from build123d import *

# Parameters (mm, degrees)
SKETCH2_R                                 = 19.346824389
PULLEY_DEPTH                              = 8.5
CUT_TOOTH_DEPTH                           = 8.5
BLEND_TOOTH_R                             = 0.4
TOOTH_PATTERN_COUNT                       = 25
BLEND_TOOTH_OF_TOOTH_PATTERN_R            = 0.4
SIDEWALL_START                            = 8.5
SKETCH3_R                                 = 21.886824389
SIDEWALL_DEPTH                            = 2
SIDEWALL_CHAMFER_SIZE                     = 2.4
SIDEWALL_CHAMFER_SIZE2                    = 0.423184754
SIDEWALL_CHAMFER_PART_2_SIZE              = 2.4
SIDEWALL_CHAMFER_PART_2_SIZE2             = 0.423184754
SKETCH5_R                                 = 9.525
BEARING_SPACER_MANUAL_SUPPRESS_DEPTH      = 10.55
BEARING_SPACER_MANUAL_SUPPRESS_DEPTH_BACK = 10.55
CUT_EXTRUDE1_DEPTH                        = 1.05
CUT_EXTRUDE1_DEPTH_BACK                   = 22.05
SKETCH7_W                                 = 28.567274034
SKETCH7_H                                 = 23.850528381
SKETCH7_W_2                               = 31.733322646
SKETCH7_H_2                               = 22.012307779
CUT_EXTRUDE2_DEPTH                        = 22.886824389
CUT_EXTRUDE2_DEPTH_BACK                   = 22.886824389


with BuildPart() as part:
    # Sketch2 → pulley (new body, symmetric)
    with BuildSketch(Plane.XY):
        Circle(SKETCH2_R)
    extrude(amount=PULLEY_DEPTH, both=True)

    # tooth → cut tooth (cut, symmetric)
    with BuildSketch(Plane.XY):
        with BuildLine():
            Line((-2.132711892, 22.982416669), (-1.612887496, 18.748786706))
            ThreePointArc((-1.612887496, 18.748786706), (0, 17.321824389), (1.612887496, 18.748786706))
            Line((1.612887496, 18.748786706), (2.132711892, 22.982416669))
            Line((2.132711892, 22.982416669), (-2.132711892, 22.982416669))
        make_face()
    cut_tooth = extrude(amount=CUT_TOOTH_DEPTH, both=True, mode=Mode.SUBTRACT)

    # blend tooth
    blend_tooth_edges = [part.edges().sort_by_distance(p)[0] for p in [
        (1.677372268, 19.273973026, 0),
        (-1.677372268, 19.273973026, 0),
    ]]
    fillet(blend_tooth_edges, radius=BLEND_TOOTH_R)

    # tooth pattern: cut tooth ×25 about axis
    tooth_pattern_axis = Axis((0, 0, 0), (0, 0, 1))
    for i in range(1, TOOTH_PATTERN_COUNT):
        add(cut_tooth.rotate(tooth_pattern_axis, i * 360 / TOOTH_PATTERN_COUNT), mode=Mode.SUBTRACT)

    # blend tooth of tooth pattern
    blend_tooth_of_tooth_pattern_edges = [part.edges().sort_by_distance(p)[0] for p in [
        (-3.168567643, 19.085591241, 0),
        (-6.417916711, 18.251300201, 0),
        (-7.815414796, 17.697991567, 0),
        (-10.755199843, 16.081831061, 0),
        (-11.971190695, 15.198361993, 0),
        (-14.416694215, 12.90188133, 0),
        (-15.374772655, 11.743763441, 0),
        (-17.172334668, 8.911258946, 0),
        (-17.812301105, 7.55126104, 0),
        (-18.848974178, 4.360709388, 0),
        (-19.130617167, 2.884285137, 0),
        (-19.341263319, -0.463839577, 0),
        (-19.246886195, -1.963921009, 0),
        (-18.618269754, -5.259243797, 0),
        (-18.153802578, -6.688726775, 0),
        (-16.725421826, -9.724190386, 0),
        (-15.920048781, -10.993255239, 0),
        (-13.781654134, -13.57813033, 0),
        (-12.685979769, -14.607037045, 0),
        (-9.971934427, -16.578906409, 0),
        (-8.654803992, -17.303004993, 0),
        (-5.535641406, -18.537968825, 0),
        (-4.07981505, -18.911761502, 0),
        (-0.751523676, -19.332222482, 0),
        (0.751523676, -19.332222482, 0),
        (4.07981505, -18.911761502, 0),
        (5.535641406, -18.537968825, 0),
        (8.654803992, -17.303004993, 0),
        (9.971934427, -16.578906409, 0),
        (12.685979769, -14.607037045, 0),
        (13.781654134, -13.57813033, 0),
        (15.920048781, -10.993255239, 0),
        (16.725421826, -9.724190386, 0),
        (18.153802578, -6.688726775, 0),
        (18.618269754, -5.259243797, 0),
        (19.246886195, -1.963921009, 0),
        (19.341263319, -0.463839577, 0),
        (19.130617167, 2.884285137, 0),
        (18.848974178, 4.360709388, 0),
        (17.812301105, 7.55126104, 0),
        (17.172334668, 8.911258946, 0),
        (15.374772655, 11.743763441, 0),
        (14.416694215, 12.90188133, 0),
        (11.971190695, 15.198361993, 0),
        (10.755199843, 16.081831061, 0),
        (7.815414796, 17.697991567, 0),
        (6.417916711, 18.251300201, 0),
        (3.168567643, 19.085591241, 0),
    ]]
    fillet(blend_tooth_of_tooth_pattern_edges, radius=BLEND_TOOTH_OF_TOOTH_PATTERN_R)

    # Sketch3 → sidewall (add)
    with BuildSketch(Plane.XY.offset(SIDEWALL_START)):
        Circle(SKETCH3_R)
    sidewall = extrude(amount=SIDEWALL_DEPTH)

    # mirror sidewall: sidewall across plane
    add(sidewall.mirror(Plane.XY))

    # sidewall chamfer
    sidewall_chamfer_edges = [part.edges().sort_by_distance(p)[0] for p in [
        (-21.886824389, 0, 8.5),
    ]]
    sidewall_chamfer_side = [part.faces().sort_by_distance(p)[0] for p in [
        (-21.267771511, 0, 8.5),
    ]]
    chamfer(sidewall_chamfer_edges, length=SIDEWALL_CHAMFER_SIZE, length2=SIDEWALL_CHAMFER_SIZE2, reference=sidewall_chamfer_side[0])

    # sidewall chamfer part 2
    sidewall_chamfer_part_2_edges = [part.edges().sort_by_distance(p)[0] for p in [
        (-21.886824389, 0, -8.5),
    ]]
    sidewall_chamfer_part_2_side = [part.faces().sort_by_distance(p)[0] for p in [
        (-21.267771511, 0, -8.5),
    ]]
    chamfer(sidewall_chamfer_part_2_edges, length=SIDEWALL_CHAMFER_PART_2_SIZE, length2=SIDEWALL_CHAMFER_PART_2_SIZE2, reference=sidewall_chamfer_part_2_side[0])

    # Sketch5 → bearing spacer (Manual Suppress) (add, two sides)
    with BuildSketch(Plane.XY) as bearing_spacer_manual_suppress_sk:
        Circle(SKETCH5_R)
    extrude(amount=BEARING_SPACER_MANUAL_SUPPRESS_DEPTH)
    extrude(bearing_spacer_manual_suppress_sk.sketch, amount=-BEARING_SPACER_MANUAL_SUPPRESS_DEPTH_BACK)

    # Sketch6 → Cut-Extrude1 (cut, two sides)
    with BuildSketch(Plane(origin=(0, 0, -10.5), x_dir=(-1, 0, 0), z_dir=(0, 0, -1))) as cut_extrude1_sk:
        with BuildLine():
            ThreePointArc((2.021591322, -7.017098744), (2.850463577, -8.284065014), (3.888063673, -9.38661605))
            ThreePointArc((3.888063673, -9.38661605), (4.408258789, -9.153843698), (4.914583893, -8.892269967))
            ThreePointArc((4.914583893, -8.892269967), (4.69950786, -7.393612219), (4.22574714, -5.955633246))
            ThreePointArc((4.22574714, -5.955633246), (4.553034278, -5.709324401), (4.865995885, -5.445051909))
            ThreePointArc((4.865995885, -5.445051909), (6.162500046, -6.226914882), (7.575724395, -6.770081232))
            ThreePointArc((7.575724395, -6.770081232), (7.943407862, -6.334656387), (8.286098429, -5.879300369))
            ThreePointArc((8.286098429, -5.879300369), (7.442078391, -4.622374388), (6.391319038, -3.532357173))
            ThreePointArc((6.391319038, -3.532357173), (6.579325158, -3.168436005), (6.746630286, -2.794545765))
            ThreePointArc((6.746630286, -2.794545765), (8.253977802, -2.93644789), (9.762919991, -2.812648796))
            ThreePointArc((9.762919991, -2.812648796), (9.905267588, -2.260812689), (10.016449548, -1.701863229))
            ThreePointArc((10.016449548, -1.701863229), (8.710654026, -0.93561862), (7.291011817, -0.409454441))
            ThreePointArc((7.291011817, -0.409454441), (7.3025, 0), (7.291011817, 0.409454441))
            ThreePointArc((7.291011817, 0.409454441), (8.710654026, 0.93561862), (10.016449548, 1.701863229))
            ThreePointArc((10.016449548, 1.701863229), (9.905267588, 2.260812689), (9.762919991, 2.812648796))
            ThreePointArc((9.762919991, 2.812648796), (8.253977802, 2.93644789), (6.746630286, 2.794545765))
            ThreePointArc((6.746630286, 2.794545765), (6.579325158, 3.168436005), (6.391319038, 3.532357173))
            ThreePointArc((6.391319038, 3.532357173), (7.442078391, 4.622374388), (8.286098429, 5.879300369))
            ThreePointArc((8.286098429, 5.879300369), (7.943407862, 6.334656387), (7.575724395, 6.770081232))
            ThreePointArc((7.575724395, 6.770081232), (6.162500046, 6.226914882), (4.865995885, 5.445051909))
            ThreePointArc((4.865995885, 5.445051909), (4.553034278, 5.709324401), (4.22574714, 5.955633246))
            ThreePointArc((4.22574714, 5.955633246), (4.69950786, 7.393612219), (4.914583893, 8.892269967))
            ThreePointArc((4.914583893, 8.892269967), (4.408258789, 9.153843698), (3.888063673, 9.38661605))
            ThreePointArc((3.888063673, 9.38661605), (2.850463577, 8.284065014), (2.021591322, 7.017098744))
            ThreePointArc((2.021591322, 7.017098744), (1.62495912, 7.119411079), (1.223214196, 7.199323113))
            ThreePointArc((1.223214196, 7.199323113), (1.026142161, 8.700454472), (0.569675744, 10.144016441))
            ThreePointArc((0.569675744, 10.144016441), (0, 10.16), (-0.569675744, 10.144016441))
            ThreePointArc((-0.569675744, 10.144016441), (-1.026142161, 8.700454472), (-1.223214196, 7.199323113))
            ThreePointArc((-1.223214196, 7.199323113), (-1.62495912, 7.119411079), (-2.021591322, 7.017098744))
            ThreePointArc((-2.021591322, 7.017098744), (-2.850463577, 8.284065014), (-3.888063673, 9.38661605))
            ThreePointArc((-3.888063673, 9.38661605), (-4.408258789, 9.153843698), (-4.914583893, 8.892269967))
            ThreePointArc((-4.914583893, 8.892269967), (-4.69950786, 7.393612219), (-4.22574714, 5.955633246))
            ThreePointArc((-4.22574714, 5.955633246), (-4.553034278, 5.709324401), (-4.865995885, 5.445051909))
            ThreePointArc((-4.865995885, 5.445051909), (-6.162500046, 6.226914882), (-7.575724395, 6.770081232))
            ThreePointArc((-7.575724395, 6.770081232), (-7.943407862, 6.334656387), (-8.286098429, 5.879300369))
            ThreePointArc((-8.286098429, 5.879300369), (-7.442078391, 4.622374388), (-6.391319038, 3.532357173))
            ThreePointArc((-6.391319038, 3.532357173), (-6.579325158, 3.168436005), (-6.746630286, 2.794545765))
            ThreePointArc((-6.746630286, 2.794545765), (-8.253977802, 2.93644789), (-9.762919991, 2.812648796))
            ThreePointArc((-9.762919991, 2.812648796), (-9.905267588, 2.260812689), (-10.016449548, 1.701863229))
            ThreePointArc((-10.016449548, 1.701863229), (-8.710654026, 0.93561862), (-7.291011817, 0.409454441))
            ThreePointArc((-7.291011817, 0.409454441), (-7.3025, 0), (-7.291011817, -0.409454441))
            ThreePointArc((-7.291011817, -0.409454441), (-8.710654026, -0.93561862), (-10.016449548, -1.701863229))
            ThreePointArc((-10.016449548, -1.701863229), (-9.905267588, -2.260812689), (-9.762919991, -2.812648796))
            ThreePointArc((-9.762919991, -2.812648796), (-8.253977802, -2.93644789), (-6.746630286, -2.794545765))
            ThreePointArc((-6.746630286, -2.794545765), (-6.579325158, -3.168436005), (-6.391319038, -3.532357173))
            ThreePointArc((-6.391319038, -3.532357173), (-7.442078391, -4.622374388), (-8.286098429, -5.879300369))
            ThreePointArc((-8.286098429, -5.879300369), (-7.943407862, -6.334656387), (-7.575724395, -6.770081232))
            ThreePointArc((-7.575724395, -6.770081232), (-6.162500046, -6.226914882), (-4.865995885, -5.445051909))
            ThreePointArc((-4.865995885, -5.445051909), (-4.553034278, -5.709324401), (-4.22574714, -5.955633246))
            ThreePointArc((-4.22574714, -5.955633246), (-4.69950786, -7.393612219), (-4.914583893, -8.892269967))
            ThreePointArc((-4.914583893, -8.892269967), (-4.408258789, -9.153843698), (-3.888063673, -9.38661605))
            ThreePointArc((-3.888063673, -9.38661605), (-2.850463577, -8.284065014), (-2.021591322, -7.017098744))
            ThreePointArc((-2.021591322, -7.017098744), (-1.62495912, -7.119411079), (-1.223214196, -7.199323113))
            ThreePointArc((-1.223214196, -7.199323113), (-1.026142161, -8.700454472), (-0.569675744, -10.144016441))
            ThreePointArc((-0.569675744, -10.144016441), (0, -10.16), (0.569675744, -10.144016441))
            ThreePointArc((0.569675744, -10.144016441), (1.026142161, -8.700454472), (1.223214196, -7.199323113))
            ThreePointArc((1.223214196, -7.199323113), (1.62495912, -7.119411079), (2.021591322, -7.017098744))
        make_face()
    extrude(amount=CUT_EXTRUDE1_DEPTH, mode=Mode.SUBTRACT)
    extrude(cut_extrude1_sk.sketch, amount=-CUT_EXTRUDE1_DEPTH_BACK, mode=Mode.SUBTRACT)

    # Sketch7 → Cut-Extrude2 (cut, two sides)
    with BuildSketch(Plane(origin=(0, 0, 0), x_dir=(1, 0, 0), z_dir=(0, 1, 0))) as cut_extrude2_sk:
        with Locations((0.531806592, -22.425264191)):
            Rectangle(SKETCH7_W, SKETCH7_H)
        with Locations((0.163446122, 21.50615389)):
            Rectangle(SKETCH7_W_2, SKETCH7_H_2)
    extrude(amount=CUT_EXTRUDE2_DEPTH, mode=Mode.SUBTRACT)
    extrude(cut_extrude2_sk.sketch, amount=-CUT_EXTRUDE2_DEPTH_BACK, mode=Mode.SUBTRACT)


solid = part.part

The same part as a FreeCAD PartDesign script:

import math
import FreeCAD as App
import Part
import Sketcher
from FreeCAD import Vector
Q = App.Units.Quantity


def edges_at(feature, points):
    """Names of the edges that pass closest to the given points."""
    edges = feature.Shape.Edges
    near = lambda p: min(range(len(edges)), key=lambda i: edges[i].distToShape(Part.Vertex(*p))[0])
    return sorted({f"Edge{near(p) + 1}" for p in points})


def add_polygon(sketch, points):
    """Adds a closed chain of lines whose ends are joined by coincident constraints."""
    first, n = sketch.GeometryCount, len(points)
    for a, b in zip(points, points[1:] + points[:1]):
        sketch.addGeometry(Part.LineSegment(App.Vector(*a, 0), App.Vector(*b, 0)), False)
    for i in range(n):
        sketch.addConstraint(Sketcher.Constraint("Coincident", first + i, 2, first + (i + 1) % n, 1))

doc = App.newDocument("Part")
body = doc.addObject("PartDesign::Body", "Body")

# Sketch on XY plane
sketch1 = body.newObject("Sketcher::SketchObject", "Sketch")
sketch1.AttachmentSupport = (doc.getObject("XY_Plane"), [""])
sketch1.MapMode = "FlatFace"
sketch1.addGeometry(Part.Circle(Vector(0, 0, 0), Vector(0, 0, 1), 19.346824), False)
sketch1.addConstraint([
    Sketcher.Constraint("Coincident", 0, 3, -1, 1),
    Sketcher.Constraint("Diameter", 0, Q("38.693649 mm")),
])
pad1 = body.newObject("PartDesign::Pad", "Pad")
pad1.Profile = sketch1
pad1.Length = 17
pad1.Midplane = True

# Sketch on XY plane
sketch2 = body.newObject("Sketcher::SketchObject", "Sketch001")
sketch2.AttachmentSupport = (doc.getObject("XY_Plane"), [""])
sketch2.MapMode = "FlatFace"
sketch2.addGeometry([
    Part.LineSegment(Vector(-2.132712, 22.982417, 0), Vector(-1.612887, 18.748787, 0)),
    Part.ArcOfCircle(Part.Circle(Vector(0, 18.946824, 0), Vector(0, 0, 1), 1.625), math.radians(-173), math.radians(-7)),
    Part.LineSegment(Vector(1.612887, 18.748787, 0), Vector(2.132712, 22.982417, 0)),
    Part.LineSegment(Vector(2.132712, 22.982417, 0), Vector(-2.132712, 22.982417, 0)),
], False)
sketch2.addConstraint([
    Sketcher.Constraint("Tangent", 0, 2, 1, 1),
    Sketcher.Constraint("Tangent", 1, 2, 2, 1),
    Sketcher.Constraint("Coincident", 2, 2, 3, 1),
    Sketcher.Constraint("Coincident", 3, 2, 0, 1),
    Sketcher.Constraint("Horizontal", 3),
    Sketcher.Constraint("Symmetric", 0, 2, 1, 2, -2),
    Sketcher.Constraint("Angle", 0, Q("-83 deg")),
    Sketcher.Constraint("Radius", 1, Q("1.625 mm")),
    Sketcher.Constraint("DistanceX", 0, 2, 2, 2, Q("3.745599 mm")),
    Sketcher.Constraint("DistanceY", -1, 1, 1, 3, Q("18.946824 mm")),
])
pocket1 = body.newObject("PartDesign::Pocket", "Pocket")
pocket1.Profile = sketch2
pocket1.Length = 17
pocket1.Midplane = True
doc.recompute()

fillet = body.newObject("PartDesign::Fillet", "Fillet")
fillet.Base = (pocket1, edges_at(pocket1, [(1.677, 19.274, 0), (-1.677, 19.274, 0)]))
fillet.Radius = 0.4
doc.recompute()

polarpattern = body.newObject("PartDesign::PolarPattern", "PolarPattern")
polarpattern.Originals = [pocket1]
polarpattern.Axis = (doc.getObject("Z_Axis"), [""])
polarpattern.Angle = 360
polarpattern.Occurrences = 25
body.Tip = polarpattern
doc.recompute()

fillet2 = body.newObject("PartDesign::Fillet", "Fillet001")
fillet2.Base = (polarpattern, edges_at(polarpattern, [
    (-3.169, 19.086, 0),
    (-6.418, 18.251, 0),
    (-7.815, 17.698, 0),
    (-10.755, 16.082, 0),
    (-11.971, 15.198, 0),
    (-14.417, 12.902, 0),
    (-15.375, 11.744, 0),
    (-17.172, 8.911, 0),
    (-17.812, 7.551, 0),
    (-18.849, 4.361, 0),
    (-19.131, 2.884, 0),
    (-19.341, -0.464, 0),
    (-19.247, -1.964, 0),
    (-18.618, -5.259, 0),
    (-18.154, -6.689, 0),
    (-16.725, -9.724, 0),
    (-15.92, -10.993, 0),
    (-13.782, -13.578, 0),
    (-12.686, -14.607, 0),
    (-9.972, -16.579, 0),
    (-8.655, -17.303, 0),
    (-5.536, -18.538, 0),
    (-4.08, -18.912, 0),
    (-0.752, -19.332, 0),
    (0.752, -19.332, 0),
    (4.08, -18.912, 0),
    (5.536, -18.538, 0),
    (8.655, -17.303, 0),
    (9.972, -16.579, 0),
    (12.686, -14.607, 0),
    (13.782, -13.578, 0),
    (15.92, -10.993, 0),
    (16.725, -9.724, 0),
    (18.154, -6.689, 0),
    (18.618, -5.259, 0),
    (19.247, -1.964, 0),
    (19.341, -0.464, 0),
    (19.131, 2.884, 0),
    (18.849, 4.361, 0),
    (17.812, 7.551, 0),
    (17.172, 8.911, 0),
    (15.375, 11.744, 0),
    (14.417, 12.902, 0),
    (11.971, 15.198, 0),
    (10.755, 16.082, 0),
    (7.815, 17.698, 0),
    (6.418, 18.251, 0),
    (3.169, 19.086, 0),
]))
fillet2.Radius = 0.4

# Sketch on XY plane
sketch3 = body.newObject("Sketcher::SketchObject", "Sketch002")
sketch3.AttachmentSupport = (doc.getObject("XY_Plane"), [""])
sketch3.MapMode = "FlatFace"
sketch3.AttachmentOffset = App.Placement(Vector(0, 0, 8.5), App.Rotation())
sketch3.addGeometry(Part.Circle(Vector(0, 0, 0), Vector(0, 0, 1), 21.886824), False)
sketch3.addConstraint([
    Sketcher.Constraint("Coincident", 0, 3, -1, 1),
    Sketcher.Constraint("Diameter", 0, Q("43.773649 mm")),
])
pad2 = body.newObject("PartDesign::Pad", "Pad001")
pad2.Profile = sketch3
pad2.Length = 2
doc.recompute()

mirrored = body.newObject("PartDesign::Mirrored", "Mirrored")
mirrored.Originals = [pad2]
mirrored.MirrorPlane = (doc.getObject("XY_Plane"), [""])
body.Tip = mirrored
doc.recompute()

chamfer = body.newObject("PartDesign::Chamfer", "Chamfer")
chamfer.Base = (mirrored, edges_at(mirrored, [(-21.887, 0, 8.5)]))
chamfer.ChamferType = "Two distances"
chamfer.Size = 2.4
chamfer.Size2 = 0.423185
doc.recompute()

chamfer2 = body.newObject("PartDesign::Chamfer", "Chamfer001")
chamfer2.Base = (chamfer, edges_at(chamfer, [(-21.887, 0, -8.5)]))
chamfer2.ChamferType = "Two distances"
chamfer2.Size = 2.4
chamfer2.Size2 = 0.423185

# Sketch on XY plane
sketch4 = body.newObject("Sketcher::SketchObject", "Sketch003")
sketch4.AttachmentSupport = (doc.getObject("XY_Plane"), [""])
sketch4.MapMode = "FlatFace"
sketch4.addGeometry(Part.Circle(Vector(0, 0, 0), Vector(0, 0, 1), 9.525), False)
sketch4.addConstraint([
    Sketcher.Constraint("Coincident", 0, 3, -1, 1),
    Sketcher.Constraint("Diameter", 0, Q("0.75 in")),
])
pad3 = body.newObject("PartDesign::Pad", "Pad002")
pad3.Profile = sketch4
pad3.Type = "TwoLengths"
pad3.Length = 10.55
pad3.Length2 = 10.55

# Sketch on XY plane
sketch5 = body.newObject("Sketcher::SketchObject", "Sketch004")
sketch5.AttachmentSupport = (doc.getObject("XY_Plane"), [""])
sketch5.MapMode = "FlatFace"
sketch5.AttachmentOffset = App.Placement(Vector(0, 0, -10.5), App.Rotation())
sketch5.addGeometry([
    Part.ArcOfCircle(Part.Circle(Vector(-9.627446, -2.945826, 0), Vector(0, 0, 1), 8.626951), math.radians(-48.295798), math.radians(-28.159317)),  # 0
    Part.ArcOfCircle(Part.Circle(Vector(0, 0, 0), Vector(0, 0, 1), 10.16), math.radians(-118.928571), math.radians(-112.5)),  # 1
    Part.ArcOfCircle(Part.Circle(Vector(3.699475, -9.363733, 0), Vector(0, 0, 1), 8.626951), math.radians(156.730746), math.radians(176.867226)),  # 2
    Part.ArcOfCircle(Part.Circle(Vector(0, 0, 0), Vector(0, 0, 1), 7.3025), math.radians(-131.785714), math.radians(-125.357143)),  # 3
    Part.ArcOfCircle(Part.Circle(Vector(-9.952175, 1.523095, 0), Vector(0, 0, 1), 8.626951), math.radians(-74.010083), math.radians(-53.873603)),  # 4
    Part.ArcOfCircle(Part.Circle(Vector(0, 0, 0), Vector(0, 0, 1), 10.16), math.radians(-144.642857), math.radians(-138.214286)),  # 5
    Part.ArcOfCircle(Part.Circle(Vector(-0.72966, -10.041574, 0), Vector(0, 0, 1), 8.626951), math.radians(131.01646), math.radians(151.15294)),  # 6
    Part.ArcOfCircle(Part.Circle(Vector(0, 0, 0), Vector(0, 0, 1), 7.3025), math.radians(-157.5), math.radians(-151.071428)),  # 7
    Part.ArcOfCircle(Part.Circle(Vector(-8.305754, 5.690348, 0), Vector(0, 0, 1), 8.626951), math.radians(-99.724369), math.radians(-79.587889)),  # 8
    Part.ArcOfCircle(Part.Circle(Vector(0, 0, 0), Vector(0, 0, 1), 10.16), math.radians(-170.357143), math.radians(-163.928571)),  # 9
    Part.ArcOfCircle(Part.Circle(Vector(-5.014276, -8.730558, 0), Vector(0, 0, 1), 8.626951), math.radians(105.302175), math.radians(125.438655)),  # 10
    Part.ArcOfCircle(Part.Circle(Vector(0, 0, 0), Vector(0, 0, 1), 7.3025), math.radians(176.785714), math.radians(183.214286)),  # 11
    Part.ArcOfCircle(Part.Circle(Vector(-5.014276, 8.730558, 0), Vector(0, 0, 1), 8.626951), math.radians(-125.438655), math.radians(-105.302175)),  # 12
    Part.ArcOfCircle(Part.Circle(Vector(0, 0, 0), Vector(0, 0, 1), 10.16), math.radians(163.928571), math.radians(170.357143)),  # 13
    Part.ArcOfCircle(Part.Circle(Vector(-8.305754, -5.690348, 0), Vector(0, 0, 1), 8.626951), math.radians(79.587889), math.radians(99.724369)),  # 14
    Part.ArcOfCircle(Part.Circle(Vector(0, 0, 0), Vector(0, 0, 1), 7.3025), math.radians(151.071428), math.radians(157.5)),  # 15
    Part.ArcOfCircle(Part.Circle(Vector(-0.72966, 10.041574, 0), Vector(0, 0, 1), 8.626951), math.radians(-151.15294), math.radians(-131.01646)),  # 16
    Part.ArcOfCircle(Part.Circle(Vector(0, 0, 0), Vector(0, 0, 1), 10.16), math.radians(138.214286), math.radians(144.642857)),  # 17
    Part.ArcOfCircle(Part.Circle(Vector(-9.952175, -1.523095, 0), Vector(0, 0, 1), 8.626951), math.radians(53.873603), math.radians(74.010083)),  # 18
    Part.ArcOfCircle(Part.Circle(Vector(0, 0, 0), Vector(0, 0, 1), 7.3025), math.radians(125.357143), math.radians(131.785714)),  # 19
    Part.ArcOfCircle(Part.Circle(Vector(3.699475, 9.363733, 0), Vector(0, 0, 1), 8.626951), math.radians(-176.867226), math.radians(-156.730746)),  # 20
    Part.ArcOfCircle(Part.Circle(Vector(0, 0, 0), Vector(0, 0, 1), 10.16), math.radians(112.5), math.radians(118.928571)),  # 21
    Part.ArcOfCircle(Part.Circle(Vector(-9.627446, 2.945826, 0), Vector(0, 0, 1), 8.626951), math.radians(28.159317), math.radians(48.295798)),  # 22
    Part.ArcOfCircle(Part.Circle(Vector(0, 0, 0), Vector(0, 0, 1), 7.3025), math.radians(99.642857), math.radians(106.071429)),  # 23
    Part.ArcOfCircle(Part.Circle(Vector(7.395883, 6.83129, 0), Vector(0, 0, 1), 8.626951), math.radians(157.418488), math.radians(177.554968)),  # 24
    Part.ArcOfCircle(Part.Circle(Vector(0, 0, 0), Vector(0, 0, 1), 10.16), math.radians(86.785714), math.radians(93.214286)),  # 25
    Part.ArcOfCircle(Part.Circle(Vector(-7.395883, 6.83129, 0), Vector(0, 0, 1), 8.626951), math.radians(2.445032), math.radians(22.581512)),  # 26
    Part.ArcOfCircle(Part.Circle(Vector(0, 0, 0), Vector(0, 0, 1), 7.3025), math.radians(73.928571), math.radians(80.357143)),  # 27
    Part.ArcOfCircle(Part.Circle(Vector(9.627446, 2.945826, 0), Vector(0, 0, 1), 8.626951), math.radians(131.704202), math.radians(151.840683)),  # 28
    Part.ArcOfCircle(Part.Circle(Vector(0, 0, 0), Vector(0, 0, 1), 10.16), math.radians(61.071429), math.radians(67.5)),  # 29
    Part.ArcOfCircle(Part.Circle(Vector(-3.699475, 9.363733, 0), Vector(0, 0, 1), 8.626951), math.radians(-23.269254), math.radians(-3.132774)),  # 30
    Part.ArcOfCircle(Part.Circle(Vector(0, 0, 0), Vector(0, 0, 1), 7.3025), math.radians(48.214286), math.radians(54.642857)),  # 31
    Part.ArcOfCircle(Part.Circle(Vector(9.952175, -1.523095, 0), Vector(0, 0, 1), 8.626951), math.radians(105.989917), math.radians(126.126397)),  # 32
    Part.ArcOfCircle(Part.Circle(Vector(0, 0, 0), Vector(0, 0, 1), 10.16), math.radians(35.357143), math.radians(41.785714)),  # 33
    Part.ArcOfCircle(Part.Circle(Vector(0.72966, 10.041574, 0), Vector(0, 0, 1), 8.626951), math.radians(-48.98354), math.radians(-28.84706)),  # 34
    Part.ArcOfCircle(Part.Circle(Vector(0, 0, 0), Vector(0, 0, 1), 7.3025), math.radians(22.5), math.radians(28.928572)),  # 35
    Part.ArcOfCircle(Part.Circle(Vector(8.305754, -5.690348, 0), Vector(0, 0, 1), 8.626951), math.radians(80.275631), math.radians(100.412111)),  # 36
    Part.ArcOfCircle(Part.Circle(Vector(0, 0, 0), Vector(0, 0, 1), 10.16), math.radians(9.642857), math.radians(16.071429)),  # 37
    Part.ArcOfCircle(Part.Circle(Vector(5.014276, 8.730558, 0), Vector(0, 0, 1), 8.626951), math.radians(-74.697825), math.radians(-54.561345)),  # 38
    Part.ArcOfCircle(Part.Circle(Vector(0, 0, 0), Vector(0, 0, 1), 7.3025), math.radians(-3.214286), math.radians(3.214286)),  # 39
    Part.ArcOfCircle(Part.Circle(Vector(5.014276, -8.730558, 0), Vector(0, 0, 1), 8.626951), math.radians(54.561345), math.radians(74.697825)),  # 40
    Part.ArcOfCircle(Part.Circle(Vector(0, 0, 0), Vector(0, 0, 1), 10.16), math.radians(-16.071429), math.radians(-9.642857)),  # 41
    Part.ArcOfCircle(Part.Circle(Vector(8.305754, 5.690348, 0), Vector(0, 0, 1), 8.626951), math.radians(-100.412111), math.radians(-80.275631)),  # 42
    Part.ArcOfCircle(Part.Circle(Vector(0, 0, 0), Vector(0, 0, 1), 7.3025), math.radians(-28.928572), math.radians(-22.5)),  # 43
    Part.ArcOfCircle(Part.Circle(Vector(0.72966, -10.041574, 0), Vector(0, 0, 1), 8.626951), math.radians(28.84706), math.radians(48.98354)),  # 44
    Part.ArcOfCircle(Part.Circle(Vector(0, 0, 0), Vector(0, 0, 1), 10.16), math.radians(-41.785714), math.radians(-35.357143)),  # 45
    Part.ArcOfCircle(Part.Circle(Vector(9.952175, 1.523095, 0), Vector(0, 0, 1), 8.626951), math.radians(-126.126397), math.radians(-105.989917)),  # 46
    Part.ArcOfCircle(Part.Circle(Vector(0, 0, 0), Vector(0, 0, 1), 7.3025), math.radians(-54.642857), math.radians(-48.214286)),  # 47
    Part.ArcOfCircle(Part.Circle(Vector(-3.699475, -9.363733, 0), Vector(0, 0, 1), 8.626951), math.radians(3.132774), math.radians(23.269254)),  # 48
    Part.ArcOfCircle(Part.Circle(Vector(0, 0, 0), Vector(0, 0, 1), 10.16), math.radians(-67.5), math.radians(-61.071429)),  # 49
    Part.ArcOfCircle(Part.Circle(Vector(9.627446, -2.945826, 0), Vector(0, 0, 1), 8.626951), math.radians(-151.840683), math.radians(-131.704202)),  # 50
    Part.ArcOfCircle(Part.Circle(Vector(0, 0, 0), Vector(0, 0, 1), 7.3025), math.radians(-80.357143), math.radians(-73.928571)),  # 51
    Part.ArcOfCircle(Part.Circle(Vector(-7.395883, -6.83129, 0), Vector(0, 0, 1), 8.626951), math.radians(-22.581512), math.radians(-2.445032)),  # 52
    Part.ArcOfCircle(Part.Circle(Vector(0, 0, 0), Vector(0, 0, 1), 10.16), math.radians(-93.214286), math.radians(-86.785714)),  # 53
    Part.ArcOfCircle(Part.Circle(Vector(7.395883, -6.83129, 0), Vector(0, 0, 1), 8.626951), math.radians(-177.554968), math.radians(-157.418488)),  # 54
    Part.ArcOfCircle(Part.Circle(Vector(0, 0, 0), Vector(0, 0, 1), 7.3025), math.radians(-106.071429), math.radians(-99.642857)),  # 55
], False)
sketch5.addConstraint([
    Sketcher.Constraint("Coincident", 0, 1, 1, 2),
    Sketcher.Constraint("Coincident", 1, 1, 2, 2),
    Sketcher.Constraint("Coincident", 2, 1, 3, 2),
    Sketcher.Constraint("Coincident", 3, 1, 4, 2),
    Sketcher.Constraint("Coincident", 4, 1, 5, 2),
    Sketcher.Constraint("Coincident", 5, 1, 6, 2),
    Sketcher.Constraint("Coincident", 6, 1, 7, 2),
    Sketcher.Constraint("Coincident", 7, 1, 8, 2),
    Sketcher.Constraint("Coincident", 8, 1, 9, 2),
    Sketcher.Constraint("Coincident", 9, 1, 10, 2),
    Sketcher.Constraint("Coincident", 10, 1, 11, 2),
    Sketcher.Constraint("Coincident", 11, 1, 12, 2),
    Sketcher.Constraint("Coincident", 12, 1, 13, 2),
    Sketcher.Constraint("Coincident", 13, 1, 14, 2),
    Sketcher.Constraint("Coincident", 14, 1, 15, 2),
    Sketcher.Constraint("Coincident", 15, 1, 16, 2),
    Sketcher.Constraint("Coincident", 16, 1, 17, 2),
    Sketcher.Constraint("Coincident", 17, 1, 18, 2),
    Sketcher.Constraint("Coincident", 18, 1, 19, 2),
    Sketcher.Constraint("Coincident", 19, 1, 20, 2),
    Sketcher.Constraint("Coincident", 20, 1, 21, 2),
    Sketcher.Constraint("Coincident", 21, 1, 22, 2),
    Sketcher.Constraint("Coincident", 22, 1, 23, 2),
    Sketcher.Constraint("Coincident", 23, 1, 24, 2),
    Sketcher.Constraint("Coincident", 24, 1, 25, 2),
    Sketcher.Constraint("Coincident", 25, 1, 26, 2),
    Sketcher.Constraint("Coincident", 26, 1, 27, 2),
    Sketcher.Constraint("Coincident", 27, 1, 28, 2),
    Sketcher.Constraint("Coincident", 28, 1, 29, 2),
    Sketcher.Constraint("Coincident", 29, 1, 30, 2),
    Sketcher.Constraint("Coincident", 30, 1, 31, 2),
    Sketcher.Constraint("Coincident", 31, 1, 32, 2),
    Sketcher.Constraint("Coincident", 32, 1, 33, 2),
    Sketcher.Constraint("Coincident", 33, 1, 34, 2),
    Sketcher.Constraint("Coincident", 34, 1, 35, 2),
    Sketcher.Constraint("Coincident", 35, 1, 36, 2),
    Sketcher.Constraint("Coincident", 36, 1, 37, 2),
    Sketcher.Constraint("Coincident", 37, 1, 38, 2),
    Sketcher.Constraint("Coincident", 38, 1, 39, 2),
    Sketcher.Constraint("Coincident", 39, 1, 40, 2),
    Sketcher.Constraint("Coincident", 40, 1, 41, 2),
    Sketcher.Constraint("Coincident", 41, 1, 42, 2),
    Sketcher.Constraint("Coincident", 42, 1, 43, 2),
    Sketcher.Constraint("Coincident", 43, 1, 44, 2),
    Sketcher.Constraint("Coincident", 44, 1, 45, 2),
    Sketcher.Constraint("Coincident", 45, 1, 46, 2),
    Sketcher.Constraint("Coincident", 46, 1, 47, 2),
    Sketcher.Constraint("Coincident", 47, 1, 48, 2),
    Sketcher.Constraint("Coincident", 48, 1, 49, 2),
    Sketcher.Constraint("Coincident", 49, 1, 50, 2),
    Sketcher.Constraint("Coincident", 50, 1, 51, 2),
    Sketcher.Constraint("Coincident", 51, 1, 52, 2),
    Sketcher.Constraint("Coincident", 52, 1, 53, 2),
    Sketcher.Constraint("Coincident", 53, 1, 54, 2),
    Sketcher.Constraint("Coincident", 54, 1, 55, 2),
    Sketcher.Constraint("Coincident", 55, 1, 0, 2),
    Sketcher.Constraint("Coincident", 1, 3, -1, 1),
    Sketcher.Constraint("Coincident", 3, 3, -1, 1),
    Sketcher.Constraint("Coincident", 5, 3, -1, 1),
    Sketcher.Constraint("Coincident", 7, 3, -1, 1),
    Sketcher.Constraint("Coincident", 9, 3, -1, 1),
    Sketcher.Constraint("Coincident", 11, 3, -1, 1),
    Sketcher.Constraint("Coincident", 13, 3, -1, 1),
    Sketcher.Constraint("Coincident", 15, 3, -1, 1),
    Sketcher.Constraint("Coincident", 17, 3, -1, 1),
    Sketcher.Constraint("Coincident", 19, 3, -1, 1),
    Sketcher.Constraint("Coincident", 21, 3, -1, 1),
    Sketcher.Constraint("Coincident", 23, 3, -1, 1),
    Sketcher.Constraint("Coincident", 25, 3, -1, 1),
    Sketcher.Constraint("Coincident", 27, 3, -1, 1),
    Sketcher.Constraint("Coincident", 29, 3, -1, 1),
    Sketcher.Constraint("Coincident", 31, 3, -1, 1),
    Sketcher.Constraint("Coincident", 33, 3, -1, 1),
    Sketcher.Constraint("Coincident", 35, 3, -1, 1),
    Sketcher.Constraint("Coincident", 37, 3, -1, 1),
    Sketcher.Constraint("Coincident", 39, 3, -1, 1),
    Sketcher.Constraint("Coincident", 41, 3, -1, 1),
    Sketcher.Constraint("Coincident", 43, 3, -1, 1),
    Sketcher.Constraint("Coincident", 45, 3, -1, 1),
    Sketcher.Constraint("Coincident", 47, 3, -1, 1),
    Sketcher.Constraint("Coincident", 49, 3, -1, 1),
    Sketcher.Constraint("Coincident", 51, 3, -1, 1),
    Sketcher.Constraint("Coincident", 53, 3, -1, 1),
    Sketcher.Constraint("Coincident", 55, 3, -1, 1),
    Sketcher.Constraint("Equal", 0, 2),
    Sketcher.Constraint("Equal", 2, 4),
    Sketcher.Constraint("Equal", 1, 5),
    Sketcher.Constraint("Equal", 4, 6),
    Sketcher.Constraint("Equal", 3, 7),
    Sketcher.Constraint("Equal", 6, 8),
    Sketcher.Constraint("Equal", 5, 9),
    Sketcher.Constraint("Equal", 8, 10),
    Sketcher.Constraint("Equal", 7, 11),
    Sketcher.Constraint("Equal", 10, 12),
    Sketcher.Constraint("Equal", 9, 13),
    Sketcher.Constraint("Equal", 12, 14),
    Sketcher.Constraint("Equal", 11, 15),
    Sketcher.Constraint("Equal", 14, 16),
    Sketcher.Constraint("Equal", 13, 17),
    Sketcher.Constraint("Equal", 16, 18),
    Sketcher.Constraint("Equal", 15, 19),
    Sketcher.Constraint("Equal", 18, 20),
    Sketcher.Constraint("Equal", 17, 21),
    Sketcher.Constraint("Equal", 20, 22),
    Sketcher.Constraint("Equal", 19, 23),
    Sketcher.Constraint("Equal", 22, 24),
    Sketcher.Constraint("Equal", 21, 25),
    Sketcher.Constraint("Equal", 24, 26),
    Sketcher.Constraint("Equal", 23, 27),
    Sketcher.Constraint("Equal", 26, 28),
    Sketcher.Constraint("Equal", 25, 29),
    Sketcher.Constraint("Equal", 28, 30),
    Sketcher.Constraint("Equal", 27, 31),
    Sketcher.Constraint("Equal", 30, 32),
    Sketcher.Constraint("Equal", 29, 33),
    Sketcher.Constraint("Equal", 32, 34),
    Sketcher.Constraint("Equal", 31, 35),
    Sketcher.Constraint("Equal", 34, 36),
    Sketcher.Constraint("Equal", 33, 37),
    Sketcher.Constraint("Equal", 36, 38),
    Sketcher.Constraint("Equal", 35, 39),
    Sketcher.Constraint("Equal", 38, 40),
    Sketcher.Constraint("Equal", 37, 41),
    Sketcher.Constraint("Equal", 40, 42),
    Sketcher.Constraint("Equal", 39, 43),
    Sketcher.Constraint("Equal", 42, 44),
    Sketcher.Constraint("Equal", 41, 45),
    Sketcher.Constraint("Equal", 44, 46),
    Sketcher.Constraint("Equal", 43, 47),
    Sketcher.Constraint("Equal", 46, 48),
    Sketcher.Constraint("Equal", 45, 49),
    Sketcher.Constraint("Equal", 48, 50),
    Sketcher.Constraint("Equal", 47, 51),
    Sketcher.Constraint("Equal", 50, 52),
    Sketcher.Constraint("Equal", 49, 53),
    Sketcher.Constraint("Equal", 52, 54),
    Sketcher.Constraint("Equal", 51, 55),
    Sketcher.Constraint("Symmetric", 0, 3, 28, 3, -1, 1),
    Sketcher.Constraint("Symmetric", 2, 3, 30, 3, -1, 1),
    Sketcher.Constraint("Symmetric", 4, 3, 32, 3, -1, 1),
    Sketcher.Constraint("Symmetric", 6, 3, 34, 3, -1, 1),
    Sketcher.Constraint("Symmetric", 8, 3, 36, 3, -1, 1),
    Sketcher.Constraint("Symmetric", 10, 3, 38, 3, -1, 1),
    Sketcher.Constraint("Symmetric", 12, 3, 40, 3, -1, 1),
    Sketcher.Constraint("Symmetric", 14, 3, 42, 3, -1, 1),
    Sketcher.Constraint("Symmetric", 16, 3, 44, 3, -1, 1),
    Sketcher.Constraint("Symmetric", 18, 3, 46, 3, -1, 1),
    Sketcher.Constraint("Symmetric", 20, 3, 48, 3, -1, 1),
    Sketcher.Constraint("Symmetric", 22, 3, 50, 3, -1, 1),
    Sketcher.Constraint("Symmetric", 24, 3, 52, 3, -1, 1),
    Sketcher.Constraint("Symmetric", 26, 3, 54, 3, -1, 1),
    Sketcher.Constraint("Symmetric", 24, 3, 26, 3, -2),
    Sketcher.Constraint("Symmetric", 22, 3, 28, 3, -2),
    Sketcher.Constraint("Symmetric", 20, 3, 30, 3, -2),
    Sketcher.Constraint("Symmetric", 18, 3, 32, 3, -2),
    Sketcher.Constraint("Symmetric", 16, 3, 34, 3, -2),
    Sketcher.Constraint("Symmetric", 14, 3, 36, 3, -2),
    Sketcher.Constraint("Symmetric", 12, 3, 38, 3, -2),
    Sketcher.Constraint("Radius", 1, Q("0.4 in")),
    Sketcher.Constraint("Radius", 3, Q("0.2875 in")),
    Sketcher.Constraint("Radius", 0, Q("8.626951 mm")),
    Sketcher.Constraint("DistanceX", 5, 1, -1, 1, Q("8.286098 mm")),
    Sketcher.Constraint("DistanceY", -1, 1, 22, 1, Q("7.017099 mm")),
    Sketcher.Constraint("DistanceX", 6, 3, -1, 1, Q("0.72966 mm")),
    Sketcher.Constraint("DistanceY", -1, 1, 24, 3, Q("6.83129 mm")),
    Sketcher.Constraint("DistanceY", 1, 1, -1, 1, Q("8.89227 mm")),
    Sketcher.Constraint("DistanceY", 3, 1, -1, 1, Q("5.445052 mm")),
    Sketcher.Constraint("DistanceY", 4, 1, -1, 1, Q("6.770081 mm")),
    Sketcher.Constraint("DistanceX", 7, 1, -1, 1, Q("6.74663 mm")),
    Sketcher.Constraint("DistanceX", 8, 1, -1, 1, Q("9.76292 mm")),
    Sketcher.Constraint("DistanceX", 9, 1, -1, 1, Q("10.01645 mm")),
    Sketcher.Constraint("DistanceX", 11, 1, -1, 1, Q("7.291012 mm")),
    Sketcher.Constraint("DistanceX", 0, 3, -1, 1, Q("9.627446 mm")),
    Sketcher.Constraint("DistanceX", -1, 1, 2, 3, Q("3.699475 mm")),
    Sketcher.Constraint("DistanceX", -1, 1, 24, 3, Q("7.395883 mm")),
])
pocket2 = body.newObject("PartDesign::Pocket", "Pocket001")
pocket2.Profile = sketch5
pocket2.Type = "ThroughAll"
pocket2.Midplane = True

# Sketch on XZ plane
sketch6 = body.newObject("Sketcher::SketchObject", "Sketch005")
sketch6.AttachmentSupport = (doc.getObject("XZ_Plane"), [""])
sketch6.MapMode = "FlatFace"
add_polygon(sketch6, [(-13.75183, 10.5), (-13.75183, 34.350528), (14.815444, 34.350528), (14.815444, 10.5)])  # lines 0-3
add_polygon(sketch6, [(-15.703215, -32.512308), (-15.703215, -10.5), (16.030107, -10.5), (16.030107, -32.512308)])  # lines 4-7
sketch6.addConstraint([
    Sketcher.Constraint("Vertical", 0),
    Sketcher.Constraint("Horizontal", 1),
    Sketcher.Constraint("Vertical", 2),
    Sketcher.Constraint("Horizontal", 3),
    Sketcher.Constraint("Vertical", 4),
    Sketcher.Constraint("Horizontal", 5),
    Sketcher.Constraint("Vertical", 6),
    Sketcher.Constraint("Horizontal", 7),
    Sketcher.Constraint("DistanceY", 0, 1, 0, 2, Q("23.850528 mm")),
    Sketcher.Constraint("DistanceY", -1, 1, 2, 2, Q("10.5 mm")),
    Sketcher.Constraint("DistanceY", 4, 2, -1, 1, Q("10.5 mm")),
    Sketcher.Constraint("DistanceX", 1, 1, 1, 2, Q("28.567274 mm")),
    Sketcher.Constraint("DistanceX", 5, 1, 5, 2, Q("31.733323 mm")),
    Sketcher.Constraint("DistanceY", 4, 1, 4, 2, Q("22.012308 mm")),
    Sketcher.Constraint("DistanceX", 0, 2, -1, 1, Q("13.75183 mm")),
    Sketcher.Constraint("DistanceX", 4, 2, 2, 2, Q("30.518659 mm")),
])
pocket3 = body.newObject("PartDesign::Pocket", "Pocket002")
pocket3.Profile = sketch6
pocket3.Type = "ThroughAll"
pocket3.Midplane = True

doc.recompute()
